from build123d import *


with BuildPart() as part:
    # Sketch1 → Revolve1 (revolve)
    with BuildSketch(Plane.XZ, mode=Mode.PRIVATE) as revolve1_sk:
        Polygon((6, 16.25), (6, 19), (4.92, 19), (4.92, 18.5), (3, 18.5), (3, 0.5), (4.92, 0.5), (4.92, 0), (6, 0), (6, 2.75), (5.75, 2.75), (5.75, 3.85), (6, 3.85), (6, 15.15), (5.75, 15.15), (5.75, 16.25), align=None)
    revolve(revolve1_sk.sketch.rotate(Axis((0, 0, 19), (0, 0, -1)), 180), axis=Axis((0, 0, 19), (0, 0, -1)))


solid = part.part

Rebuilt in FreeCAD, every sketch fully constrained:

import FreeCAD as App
import Part
import Sketcher
from FreeCAD import Vector
Q = App.Units.Quantity


def add_polygon(sketch, points):
    """Adds a closed chain of lines whose ends are joined by coincident constraints."""
    first, n = sketch.GeometryCount, len(points)
    for a, b in zip(points, points[1:] + points[:1]):
        sketch.addGeometry(Part.LineSegment(App.Vector(*a, 0), App.Vector(*b, 0)), False)
    for i in range(n):
        sketch.addConstraint(Sketcher.Constraint("Coincident", first + i, 2, first + (i + 1) % n, 1))

doc = App.newDocument("Part")
body = doc.addObject("PartDesign::Body", "Body")

# Sketch on XZ plane
sketch1 = body.newObject("Sketcher::SketchObject", "Sketch")
sketch1.AttachmentSupport = (doc.getObject("XZ_Plane"), [""])
sketch1.MapMode = "FlatFace"
add_polygon(sketch1, [(6, 16.25), (6, 19), (4.92, 19), (4.92, 18.5), (3, 18.5), (3, 0.5), (4.92, 0.5), (4.92, 0), (6, 0), (6, 2.75), (5.75, 2.75), (5.75, 3.85), (6, 3.85), (6, 15.15), (5.75, 15.15), (5.75, 16.25)])  # lines 0-15
sketch1.addConstraint(Sketcher.Constraint("Vertical", 0))
sketch1.addConstraint(Sketcher.Constraint("Horizontal", 1))
sketch1.addConstraint(Sketcher.Constraint("Vertical", 2))
sketch1.addConstraint(Sketcher.Constraint("Horizontal", 3))
sketch1.addConstraint(Sketcher.Constraint("Vertical", 4))
sketch1.addConstraint(Sketcher.Constraint("Horizontal", 5))
sketch1.addConstraint(Sketcher.Constraint("Vertical", 6))
sketch1.addConstraint(Sketcher.Constraint("Horizontal", 7))
sketch1.addConstraint(Sketcher.Constraint("Vertical", 8))
sketch1.addConstraint(Sketcher.Constraint("Horizontal", 9))
sketch1.addConstraint(Sketcher.Constraint("Vertical", 10))
sketch1.addConstraint(Sketcher.Constraint("Horizontal", 11))
sketch1.addConstraint(Sketcher.Constraint("Vertical", 12))
sketch1.addConstraint(Sketcher.Constraint("Horizontal", 13))
sketch1.addConstraint(Sketcher.Constraint("Vertical", 14))
sketch1.addConstraint(Sketcher.Constraint("Horizontal", 15))
sketch1.addConstraint(Sketcher.Constraint("PointOnObject", 6, 2, -1))
sketch1.addConstraint(Sketcher.Constraint("Vertical", 2, 2, 5, 2))
sketch1.addConstraint(Sketcher.Constraint("Vertical", 0, 2, 7, 2))
sketch1.addConstraint(Sketcher.Constraint("Vertical", 8, 2, 11, 2))
sketch1.addConstraint(Sketcher.Constraint("Vertical", 10, 2, 13, 2))
sketch1.addConstraint(Sketcher.Constraint("Equal", 2, 6))
sketch1.addConstraint(Sketcher.Constraint("Equal", 0, 8))
sketch1.addConstraint(Sketcher.Constraint("Equal", 10, 14))
sketch1.addConstraint(Sketcher.Constraint("DistanceY", 4, 2, 4, 1, Q("18 mm")))
sketch1.addConstraint(Sketcher.Constraint("DistanceY", 2, 2, 2, 1, Q("0.5 mm")))
sketch1.addConstraint(Sketcher.Constraint("DistanceY", 10, 1, 10, 2, Q("1.1 mm")))
sketch1.addConstraint(Sketcher.Constraint("DistanceY", 12, 1, 12, 2, Q("11.3 mm")))
sketch1.addConstraint(Sketcher.Constraint("DistanceX", -1, 1, 0, 2, Q("6 mm")))
sketch1.addConstraint(Sketcher.Constraint("DistanceX", -1, 1, 3, 2, Q("3 mm")))
sketch1.addConstraint(Sketcher.Constraint("DistanceX", 1, 2, 1, 1, Q("1.08 mm")))
sketch1.addConstraint(Sketcher.Constraint("DistanceX", 9, 2, 9, 1, Q("0.25 mm")))
revolution = body.newObject("PartDesign::Revolution", "Revolution")
revolution.Profile = sketch1
revolution.ReferenceAxis = (sketch1, ["V_Axis"])
revolution.Angle = 360

doc.recompute()
